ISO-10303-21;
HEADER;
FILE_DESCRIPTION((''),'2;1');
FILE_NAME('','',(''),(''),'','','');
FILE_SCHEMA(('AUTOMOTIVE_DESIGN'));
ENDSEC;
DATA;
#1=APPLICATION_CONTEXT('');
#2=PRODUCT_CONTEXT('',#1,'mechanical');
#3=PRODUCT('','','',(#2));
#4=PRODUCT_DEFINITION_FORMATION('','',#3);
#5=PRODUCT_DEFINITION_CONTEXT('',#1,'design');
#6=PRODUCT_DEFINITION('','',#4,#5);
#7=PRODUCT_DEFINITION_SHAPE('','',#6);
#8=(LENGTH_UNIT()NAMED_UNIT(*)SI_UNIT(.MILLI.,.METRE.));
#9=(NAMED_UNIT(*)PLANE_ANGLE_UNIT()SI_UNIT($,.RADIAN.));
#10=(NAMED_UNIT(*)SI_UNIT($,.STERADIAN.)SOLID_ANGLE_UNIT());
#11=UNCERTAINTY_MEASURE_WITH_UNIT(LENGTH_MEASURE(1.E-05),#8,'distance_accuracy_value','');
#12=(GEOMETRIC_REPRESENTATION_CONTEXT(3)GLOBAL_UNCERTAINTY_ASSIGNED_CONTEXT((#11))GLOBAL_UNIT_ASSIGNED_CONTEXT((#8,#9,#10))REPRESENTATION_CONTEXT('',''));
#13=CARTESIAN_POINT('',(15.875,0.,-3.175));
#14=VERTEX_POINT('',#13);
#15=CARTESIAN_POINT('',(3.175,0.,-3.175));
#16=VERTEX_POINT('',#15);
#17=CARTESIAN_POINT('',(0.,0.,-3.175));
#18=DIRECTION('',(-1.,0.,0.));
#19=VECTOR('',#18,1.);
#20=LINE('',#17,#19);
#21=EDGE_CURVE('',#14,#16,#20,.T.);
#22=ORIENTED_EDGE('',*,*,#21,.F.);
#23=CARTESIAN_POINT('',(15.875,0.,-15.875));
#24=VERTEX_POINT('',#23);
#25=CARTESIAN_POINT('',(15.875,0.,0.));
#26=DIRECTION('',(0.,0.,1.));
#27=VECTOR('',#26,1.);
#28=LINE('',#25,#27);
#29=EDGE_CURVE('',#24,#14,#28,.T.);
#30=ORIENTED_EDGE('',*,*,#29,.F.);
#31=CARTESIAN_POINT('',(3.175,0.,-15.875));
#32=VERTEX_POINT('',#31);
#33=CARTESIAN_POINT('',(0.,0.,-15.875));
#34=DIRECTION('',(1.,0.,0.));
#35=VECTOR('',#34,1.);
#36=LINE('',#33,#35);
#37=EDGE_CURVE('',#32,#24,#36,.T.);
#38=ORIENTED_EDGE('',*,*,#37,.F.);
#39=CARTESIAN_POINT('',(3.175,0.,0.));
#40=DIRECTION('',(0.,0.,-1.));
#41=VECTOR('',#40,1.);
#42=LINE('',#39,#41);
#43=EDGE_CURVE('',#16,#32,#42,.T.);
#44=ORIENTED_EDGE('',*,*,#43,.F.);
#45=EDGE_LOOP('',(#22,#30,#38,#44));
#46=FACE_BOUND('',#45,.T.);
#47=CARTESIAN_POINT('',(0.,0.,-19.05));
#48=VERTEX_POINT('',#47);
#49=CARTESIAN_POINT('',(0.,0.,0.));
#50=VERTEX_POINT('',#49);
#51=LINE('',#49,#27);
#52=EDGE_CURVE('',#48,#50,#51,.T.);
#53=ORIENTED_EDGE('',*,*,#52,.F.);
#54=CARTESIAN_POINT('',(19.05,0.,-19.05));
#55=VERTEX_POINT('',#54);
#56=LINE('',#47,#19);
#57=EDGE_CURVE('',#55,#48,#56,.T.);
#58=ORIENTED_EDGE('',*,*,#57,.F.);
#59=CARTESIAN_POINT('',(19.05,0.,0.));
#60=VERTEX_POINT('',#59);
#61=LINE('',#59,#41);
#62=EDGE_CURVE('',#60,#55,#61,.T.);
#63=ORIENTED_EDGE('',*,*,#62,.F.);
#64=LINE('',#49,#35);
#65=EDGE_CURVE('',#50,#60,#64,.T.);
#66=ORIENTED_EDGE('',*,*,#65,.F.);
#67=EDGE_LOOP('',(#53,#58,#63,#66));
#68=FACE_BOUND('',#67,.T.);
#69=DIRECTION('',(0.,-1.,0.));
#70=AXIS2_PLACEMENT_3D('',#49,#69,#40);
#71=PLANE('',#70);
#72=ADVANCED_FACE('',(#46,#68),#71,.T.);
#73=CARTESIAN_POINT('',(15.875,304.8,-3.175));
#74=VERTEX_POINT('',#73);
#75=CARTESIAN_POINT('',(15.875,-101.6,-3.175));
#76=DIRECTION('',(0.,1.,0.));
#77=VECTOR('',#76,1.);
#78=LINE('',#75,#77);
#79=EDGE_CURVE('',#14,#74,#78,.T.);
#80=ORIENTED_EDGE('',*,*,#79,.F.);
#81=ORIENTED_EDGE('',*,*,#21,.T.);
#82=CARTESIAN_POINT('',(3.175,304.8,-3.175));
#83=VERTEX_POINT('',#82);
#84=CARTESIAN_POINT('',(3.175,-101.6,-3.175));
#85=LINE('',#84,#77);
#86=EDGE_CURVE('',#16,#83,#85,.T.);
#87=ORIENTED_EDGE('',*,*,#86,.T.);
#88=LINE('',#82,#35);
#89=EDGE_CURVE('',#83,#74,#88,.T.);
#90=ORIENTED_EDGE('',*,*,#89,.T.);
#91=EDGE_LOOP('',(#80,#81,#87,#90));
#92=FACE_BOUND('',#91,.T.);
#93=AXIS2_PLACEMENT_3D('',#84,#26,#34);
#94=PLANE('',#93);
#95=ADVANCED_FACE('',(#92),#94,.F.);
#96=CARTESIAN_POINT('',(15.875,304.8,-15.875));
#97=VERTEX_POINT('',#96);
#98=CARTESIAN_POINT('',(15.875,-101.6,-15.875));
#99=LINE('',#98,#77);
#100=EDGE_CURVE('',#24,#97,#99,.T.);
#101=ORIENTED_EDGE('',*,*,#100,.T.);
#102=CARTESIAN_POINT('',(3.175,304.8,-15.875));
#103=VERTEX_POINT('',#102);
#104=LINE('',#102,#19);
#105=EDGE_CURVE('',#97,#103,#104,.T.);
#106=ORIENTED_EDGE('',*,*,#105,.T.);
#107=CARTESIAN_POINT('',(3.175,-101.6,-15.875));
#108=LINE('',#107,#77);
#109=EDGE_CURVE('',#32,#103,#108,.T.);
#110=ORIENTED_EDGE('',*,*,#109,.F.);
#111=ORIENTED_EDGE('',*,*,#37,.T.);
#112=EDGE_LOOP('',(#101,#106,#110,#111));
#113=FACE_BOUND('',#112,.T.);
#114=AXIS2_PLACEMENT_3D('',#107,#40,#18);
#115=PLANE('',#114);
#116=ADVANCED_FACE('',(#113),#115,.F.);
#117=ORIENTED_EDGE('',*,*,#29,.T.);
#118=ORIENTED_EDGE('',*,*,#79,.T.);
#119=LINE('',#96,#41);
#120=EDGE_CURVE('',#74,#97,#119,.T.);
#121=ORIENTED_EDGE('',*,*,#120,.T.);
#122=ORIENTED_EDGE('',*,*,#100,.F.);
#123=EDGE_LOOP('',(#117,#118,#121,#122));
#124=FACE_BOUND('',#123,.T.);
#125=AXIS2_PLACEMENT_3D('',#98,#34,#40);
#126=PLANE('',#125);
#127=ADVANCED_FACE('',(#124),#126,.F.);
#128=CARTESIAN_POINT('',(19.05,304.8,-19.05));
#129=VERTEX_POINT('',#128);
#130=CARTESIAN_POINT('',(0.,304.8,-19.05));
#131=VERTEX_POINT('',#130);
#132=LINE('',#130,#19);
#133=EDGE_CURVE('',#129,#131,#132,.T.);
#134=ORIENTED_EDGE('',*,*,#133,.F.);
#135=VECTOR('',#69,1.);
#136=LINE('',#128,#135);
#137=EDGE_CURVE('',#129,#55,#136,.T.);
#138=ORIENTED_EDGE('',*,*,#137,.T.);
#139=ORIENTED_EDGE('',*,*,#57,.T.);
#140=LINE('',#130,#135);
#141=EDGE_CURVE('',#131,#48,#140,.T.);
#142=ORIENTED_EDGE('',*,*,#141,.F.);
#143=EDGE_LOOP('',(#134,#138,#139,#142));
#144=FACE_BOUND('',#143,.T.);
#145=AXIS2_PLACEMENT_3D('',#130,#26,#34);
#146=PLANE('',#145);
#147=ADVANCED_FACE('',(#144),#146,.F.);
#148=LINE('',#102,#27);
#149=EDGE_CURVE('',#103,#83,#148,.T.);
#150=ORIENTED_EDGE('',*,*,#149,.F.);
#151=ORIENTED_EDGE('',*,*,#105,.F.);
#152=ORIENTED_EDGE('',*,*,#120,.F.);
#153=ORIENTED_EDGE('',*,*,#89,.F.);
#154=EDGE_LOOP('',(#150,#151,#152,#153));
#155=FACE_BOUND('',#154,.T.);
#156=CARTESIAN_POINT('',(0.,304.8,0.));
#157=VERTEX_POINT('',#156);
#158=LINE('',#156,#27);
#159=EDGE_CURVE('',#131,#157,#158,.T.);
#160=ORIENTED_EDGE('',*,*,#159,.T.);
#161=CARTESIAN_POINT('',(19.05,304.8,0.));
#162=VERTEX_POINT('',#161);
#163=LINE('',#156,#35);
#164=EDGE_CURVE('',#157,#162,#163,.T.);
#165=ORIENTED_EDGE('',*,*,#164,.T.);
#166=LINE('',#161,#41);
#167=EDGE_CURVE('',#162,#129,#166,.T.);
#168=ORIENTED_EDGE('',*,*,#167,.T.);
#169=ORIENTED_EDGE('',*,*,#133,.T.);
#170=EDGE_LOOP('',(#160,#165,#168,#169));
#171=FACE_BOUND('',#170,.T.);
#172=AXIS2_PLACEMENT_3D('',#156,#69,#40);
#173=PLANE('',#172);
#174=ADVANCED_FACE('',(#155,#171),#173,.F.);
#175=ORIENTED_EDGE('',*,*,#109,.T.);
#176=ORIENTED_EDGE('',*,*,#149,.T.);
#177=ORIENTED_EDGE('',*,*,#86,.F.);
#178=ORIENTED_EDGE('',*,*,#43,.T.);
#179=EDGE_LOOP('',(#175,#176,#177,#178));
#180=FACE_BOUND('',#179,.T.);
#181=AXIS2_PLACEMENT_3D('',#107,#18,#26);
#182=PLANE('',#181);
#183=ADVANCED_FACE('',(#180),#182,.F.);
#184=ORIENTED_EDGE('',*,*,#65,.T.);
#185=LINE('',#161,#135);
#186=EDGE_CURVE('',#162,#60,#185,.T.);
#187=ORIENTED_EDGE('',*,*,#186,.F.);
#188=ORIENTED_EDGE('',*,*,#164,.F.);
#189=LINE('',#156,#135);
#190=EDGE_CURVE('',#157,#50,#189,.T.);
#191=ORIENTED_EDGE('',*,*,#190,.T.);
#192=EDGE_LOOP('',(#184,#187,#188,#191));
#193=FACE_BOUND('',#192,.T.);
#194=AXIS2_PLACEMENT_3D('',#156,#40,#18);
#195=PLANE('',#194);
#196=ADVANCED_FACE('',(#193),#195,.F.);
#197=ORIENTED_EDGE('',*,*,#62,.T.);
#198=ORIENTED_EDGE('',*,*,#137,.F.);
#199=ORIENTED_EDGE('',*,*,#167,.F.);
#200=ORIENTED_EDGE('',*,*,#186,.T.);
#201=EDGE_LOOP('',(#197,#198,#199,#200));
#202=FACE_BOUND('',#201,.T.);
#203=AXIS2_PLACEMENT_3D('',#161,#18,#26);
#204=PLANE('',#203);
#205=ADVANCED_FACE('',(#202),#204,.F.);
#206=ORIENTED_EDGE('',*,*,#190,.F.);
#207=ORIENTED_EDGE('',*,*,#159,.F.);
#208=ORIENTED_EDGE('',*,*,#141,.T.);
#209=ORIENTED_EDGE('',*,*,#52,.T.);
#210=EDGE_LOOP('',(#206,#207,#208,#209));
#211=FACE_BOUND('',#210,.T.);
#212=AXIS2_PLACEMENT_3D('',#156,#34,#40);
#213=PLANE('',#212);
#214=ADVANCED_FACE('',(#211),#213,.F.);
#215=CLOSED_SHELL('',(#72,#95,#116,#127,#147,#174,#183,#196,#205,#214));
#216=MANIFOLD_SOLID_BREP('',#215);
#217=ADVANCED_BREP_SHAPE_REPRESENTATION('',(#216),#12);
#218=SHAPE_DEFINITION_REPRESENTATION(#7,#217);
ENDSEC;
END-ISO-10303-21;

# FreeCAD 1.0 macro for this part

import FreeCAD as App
import Part
import Sketcher
Q = App.Units.Quantity

doc = App.newDocument("Part")
body = doc.addObject("PartDesign::Body", "Body")

sketch1 = doc.addObject("Sketcher::SketchObject", "Sketch")
body.addObject(sketch1)
sketch1.AttachmentSupport = (doc.XZ_Plane, [""])
sketch1.MapMode = "FlatFace"
sketch1.addGeometry([
    Part.LineSegment(App.Vector(0, -19, 0), App.Vector(0, 0, 0)),
    Part.LineSegment(App.Vector(0, 0, 0), App.Vector(19, 0, 0)),
    Part.LineSegment(App.Vector(19, 0, 0), App.Vector(19, -19, 0)),
    Part.LineSegment(App.Vector(19, -19, 0), App.Vector(0, -19, 0)),
], False)
sketch1.addConstraint([
    Sketcher.Constraint("Coincident", 0, 2, 1, 1),
    Sketcher.Constraint("Coincident", 1, 2, 2, 1),
    Sketcher.Constraint("Coincident", 2, 2, 3, 1),
    Sketcher.Constraint("Coincident", 3, 2, 0, 1),
    Sketcher.Constraint("Vertical", 0),
    Sketcher.Constraint("Horizontal", 1),
    Sketcher.Constraint("Vertical", 2),
    Sketcher.Constraint("Horizontal", 3),
    Sketcher.Constraint("Coincident", 0, 2, -1, 1),
    Sketcher.Constraint("Equal", 3, 0),
    Sketcher.Constraint("DistanceX", 1, 1, 1, 2, Q("0.75 in")),
])
pad1 = doc.addObject("PartDesign::Pad", "Pad")
body.addObject(pad1)
pad1.Profile = sketch1
pad1.Length = Q("12 in")
pad1.Reversed = True

sketch2 = doc.addObject("Sketcher::SketchObject", "Sketch001")
body.addObject(sketch2)
sketch2.AttachmentSupport = (doc.XZ_Plane, [""])
sketch2.MapMode = "FlatFace"
sketch2.AttachmentOffset = App.Placement(App.Vector(0, 0, -12 * 25.4), App.Rotation())
sketch2.addGeometry([
    Part.LineSegment(App.Vector(3, -16, 0), App.Vector(3, -3, 0)),
    Part.LineSegment(App.Vector(3, -3, 0), App.Vector(16, -3, 0)),
    Part.LineSegment(App.Vector(16, -3, 0), App.Vector(16, -16, 0)),
    Part.LineSegment(App.Vector(16, -16, 0), App.Vector(3, -16, 0)),
], False)
sketch2.addConstraint([
    Sketcher.Constraint("Coincident", 0, 2, 1, 1),
    Sketcher.Constraint("Coincident", 1, 2, 2, 1),
    Sketcher.Constraint("Coincident", 2, 2, 3, 1),
    Sketcher.Constraint("Coincident", 3, 2, 0, 1),
    Sketcher.Constraint("Vertical", 0),
    Sketcher.Constraint("Horizontal", 1),
    Sketcher.Constraint("Vertical", 2),
    Sketcher.Constraint("Horizontal", 3),
    Sketcher.Constraint("Equal", 3, 0),
    Sketcher.Constraint("DistanceX", 1, 1, 1, 2, Q("0.5 in")),
    Sketcher.Constraint("DistanceX", -1, 1, 0, 2, Q("0.125 in")),
    Sketcher.Constraint("DistanceY", 0, 2, -1, 1, Q("0.125 in")),
])
pocket1 = doc.addObject("PartDesign::Pocket", "Pocket")
body.addObject(pocket1)
pocket1.Profile = sketch2
pocket1.Length = Q("16 in")
pocket1.Reversed = True

doc.recompute()
